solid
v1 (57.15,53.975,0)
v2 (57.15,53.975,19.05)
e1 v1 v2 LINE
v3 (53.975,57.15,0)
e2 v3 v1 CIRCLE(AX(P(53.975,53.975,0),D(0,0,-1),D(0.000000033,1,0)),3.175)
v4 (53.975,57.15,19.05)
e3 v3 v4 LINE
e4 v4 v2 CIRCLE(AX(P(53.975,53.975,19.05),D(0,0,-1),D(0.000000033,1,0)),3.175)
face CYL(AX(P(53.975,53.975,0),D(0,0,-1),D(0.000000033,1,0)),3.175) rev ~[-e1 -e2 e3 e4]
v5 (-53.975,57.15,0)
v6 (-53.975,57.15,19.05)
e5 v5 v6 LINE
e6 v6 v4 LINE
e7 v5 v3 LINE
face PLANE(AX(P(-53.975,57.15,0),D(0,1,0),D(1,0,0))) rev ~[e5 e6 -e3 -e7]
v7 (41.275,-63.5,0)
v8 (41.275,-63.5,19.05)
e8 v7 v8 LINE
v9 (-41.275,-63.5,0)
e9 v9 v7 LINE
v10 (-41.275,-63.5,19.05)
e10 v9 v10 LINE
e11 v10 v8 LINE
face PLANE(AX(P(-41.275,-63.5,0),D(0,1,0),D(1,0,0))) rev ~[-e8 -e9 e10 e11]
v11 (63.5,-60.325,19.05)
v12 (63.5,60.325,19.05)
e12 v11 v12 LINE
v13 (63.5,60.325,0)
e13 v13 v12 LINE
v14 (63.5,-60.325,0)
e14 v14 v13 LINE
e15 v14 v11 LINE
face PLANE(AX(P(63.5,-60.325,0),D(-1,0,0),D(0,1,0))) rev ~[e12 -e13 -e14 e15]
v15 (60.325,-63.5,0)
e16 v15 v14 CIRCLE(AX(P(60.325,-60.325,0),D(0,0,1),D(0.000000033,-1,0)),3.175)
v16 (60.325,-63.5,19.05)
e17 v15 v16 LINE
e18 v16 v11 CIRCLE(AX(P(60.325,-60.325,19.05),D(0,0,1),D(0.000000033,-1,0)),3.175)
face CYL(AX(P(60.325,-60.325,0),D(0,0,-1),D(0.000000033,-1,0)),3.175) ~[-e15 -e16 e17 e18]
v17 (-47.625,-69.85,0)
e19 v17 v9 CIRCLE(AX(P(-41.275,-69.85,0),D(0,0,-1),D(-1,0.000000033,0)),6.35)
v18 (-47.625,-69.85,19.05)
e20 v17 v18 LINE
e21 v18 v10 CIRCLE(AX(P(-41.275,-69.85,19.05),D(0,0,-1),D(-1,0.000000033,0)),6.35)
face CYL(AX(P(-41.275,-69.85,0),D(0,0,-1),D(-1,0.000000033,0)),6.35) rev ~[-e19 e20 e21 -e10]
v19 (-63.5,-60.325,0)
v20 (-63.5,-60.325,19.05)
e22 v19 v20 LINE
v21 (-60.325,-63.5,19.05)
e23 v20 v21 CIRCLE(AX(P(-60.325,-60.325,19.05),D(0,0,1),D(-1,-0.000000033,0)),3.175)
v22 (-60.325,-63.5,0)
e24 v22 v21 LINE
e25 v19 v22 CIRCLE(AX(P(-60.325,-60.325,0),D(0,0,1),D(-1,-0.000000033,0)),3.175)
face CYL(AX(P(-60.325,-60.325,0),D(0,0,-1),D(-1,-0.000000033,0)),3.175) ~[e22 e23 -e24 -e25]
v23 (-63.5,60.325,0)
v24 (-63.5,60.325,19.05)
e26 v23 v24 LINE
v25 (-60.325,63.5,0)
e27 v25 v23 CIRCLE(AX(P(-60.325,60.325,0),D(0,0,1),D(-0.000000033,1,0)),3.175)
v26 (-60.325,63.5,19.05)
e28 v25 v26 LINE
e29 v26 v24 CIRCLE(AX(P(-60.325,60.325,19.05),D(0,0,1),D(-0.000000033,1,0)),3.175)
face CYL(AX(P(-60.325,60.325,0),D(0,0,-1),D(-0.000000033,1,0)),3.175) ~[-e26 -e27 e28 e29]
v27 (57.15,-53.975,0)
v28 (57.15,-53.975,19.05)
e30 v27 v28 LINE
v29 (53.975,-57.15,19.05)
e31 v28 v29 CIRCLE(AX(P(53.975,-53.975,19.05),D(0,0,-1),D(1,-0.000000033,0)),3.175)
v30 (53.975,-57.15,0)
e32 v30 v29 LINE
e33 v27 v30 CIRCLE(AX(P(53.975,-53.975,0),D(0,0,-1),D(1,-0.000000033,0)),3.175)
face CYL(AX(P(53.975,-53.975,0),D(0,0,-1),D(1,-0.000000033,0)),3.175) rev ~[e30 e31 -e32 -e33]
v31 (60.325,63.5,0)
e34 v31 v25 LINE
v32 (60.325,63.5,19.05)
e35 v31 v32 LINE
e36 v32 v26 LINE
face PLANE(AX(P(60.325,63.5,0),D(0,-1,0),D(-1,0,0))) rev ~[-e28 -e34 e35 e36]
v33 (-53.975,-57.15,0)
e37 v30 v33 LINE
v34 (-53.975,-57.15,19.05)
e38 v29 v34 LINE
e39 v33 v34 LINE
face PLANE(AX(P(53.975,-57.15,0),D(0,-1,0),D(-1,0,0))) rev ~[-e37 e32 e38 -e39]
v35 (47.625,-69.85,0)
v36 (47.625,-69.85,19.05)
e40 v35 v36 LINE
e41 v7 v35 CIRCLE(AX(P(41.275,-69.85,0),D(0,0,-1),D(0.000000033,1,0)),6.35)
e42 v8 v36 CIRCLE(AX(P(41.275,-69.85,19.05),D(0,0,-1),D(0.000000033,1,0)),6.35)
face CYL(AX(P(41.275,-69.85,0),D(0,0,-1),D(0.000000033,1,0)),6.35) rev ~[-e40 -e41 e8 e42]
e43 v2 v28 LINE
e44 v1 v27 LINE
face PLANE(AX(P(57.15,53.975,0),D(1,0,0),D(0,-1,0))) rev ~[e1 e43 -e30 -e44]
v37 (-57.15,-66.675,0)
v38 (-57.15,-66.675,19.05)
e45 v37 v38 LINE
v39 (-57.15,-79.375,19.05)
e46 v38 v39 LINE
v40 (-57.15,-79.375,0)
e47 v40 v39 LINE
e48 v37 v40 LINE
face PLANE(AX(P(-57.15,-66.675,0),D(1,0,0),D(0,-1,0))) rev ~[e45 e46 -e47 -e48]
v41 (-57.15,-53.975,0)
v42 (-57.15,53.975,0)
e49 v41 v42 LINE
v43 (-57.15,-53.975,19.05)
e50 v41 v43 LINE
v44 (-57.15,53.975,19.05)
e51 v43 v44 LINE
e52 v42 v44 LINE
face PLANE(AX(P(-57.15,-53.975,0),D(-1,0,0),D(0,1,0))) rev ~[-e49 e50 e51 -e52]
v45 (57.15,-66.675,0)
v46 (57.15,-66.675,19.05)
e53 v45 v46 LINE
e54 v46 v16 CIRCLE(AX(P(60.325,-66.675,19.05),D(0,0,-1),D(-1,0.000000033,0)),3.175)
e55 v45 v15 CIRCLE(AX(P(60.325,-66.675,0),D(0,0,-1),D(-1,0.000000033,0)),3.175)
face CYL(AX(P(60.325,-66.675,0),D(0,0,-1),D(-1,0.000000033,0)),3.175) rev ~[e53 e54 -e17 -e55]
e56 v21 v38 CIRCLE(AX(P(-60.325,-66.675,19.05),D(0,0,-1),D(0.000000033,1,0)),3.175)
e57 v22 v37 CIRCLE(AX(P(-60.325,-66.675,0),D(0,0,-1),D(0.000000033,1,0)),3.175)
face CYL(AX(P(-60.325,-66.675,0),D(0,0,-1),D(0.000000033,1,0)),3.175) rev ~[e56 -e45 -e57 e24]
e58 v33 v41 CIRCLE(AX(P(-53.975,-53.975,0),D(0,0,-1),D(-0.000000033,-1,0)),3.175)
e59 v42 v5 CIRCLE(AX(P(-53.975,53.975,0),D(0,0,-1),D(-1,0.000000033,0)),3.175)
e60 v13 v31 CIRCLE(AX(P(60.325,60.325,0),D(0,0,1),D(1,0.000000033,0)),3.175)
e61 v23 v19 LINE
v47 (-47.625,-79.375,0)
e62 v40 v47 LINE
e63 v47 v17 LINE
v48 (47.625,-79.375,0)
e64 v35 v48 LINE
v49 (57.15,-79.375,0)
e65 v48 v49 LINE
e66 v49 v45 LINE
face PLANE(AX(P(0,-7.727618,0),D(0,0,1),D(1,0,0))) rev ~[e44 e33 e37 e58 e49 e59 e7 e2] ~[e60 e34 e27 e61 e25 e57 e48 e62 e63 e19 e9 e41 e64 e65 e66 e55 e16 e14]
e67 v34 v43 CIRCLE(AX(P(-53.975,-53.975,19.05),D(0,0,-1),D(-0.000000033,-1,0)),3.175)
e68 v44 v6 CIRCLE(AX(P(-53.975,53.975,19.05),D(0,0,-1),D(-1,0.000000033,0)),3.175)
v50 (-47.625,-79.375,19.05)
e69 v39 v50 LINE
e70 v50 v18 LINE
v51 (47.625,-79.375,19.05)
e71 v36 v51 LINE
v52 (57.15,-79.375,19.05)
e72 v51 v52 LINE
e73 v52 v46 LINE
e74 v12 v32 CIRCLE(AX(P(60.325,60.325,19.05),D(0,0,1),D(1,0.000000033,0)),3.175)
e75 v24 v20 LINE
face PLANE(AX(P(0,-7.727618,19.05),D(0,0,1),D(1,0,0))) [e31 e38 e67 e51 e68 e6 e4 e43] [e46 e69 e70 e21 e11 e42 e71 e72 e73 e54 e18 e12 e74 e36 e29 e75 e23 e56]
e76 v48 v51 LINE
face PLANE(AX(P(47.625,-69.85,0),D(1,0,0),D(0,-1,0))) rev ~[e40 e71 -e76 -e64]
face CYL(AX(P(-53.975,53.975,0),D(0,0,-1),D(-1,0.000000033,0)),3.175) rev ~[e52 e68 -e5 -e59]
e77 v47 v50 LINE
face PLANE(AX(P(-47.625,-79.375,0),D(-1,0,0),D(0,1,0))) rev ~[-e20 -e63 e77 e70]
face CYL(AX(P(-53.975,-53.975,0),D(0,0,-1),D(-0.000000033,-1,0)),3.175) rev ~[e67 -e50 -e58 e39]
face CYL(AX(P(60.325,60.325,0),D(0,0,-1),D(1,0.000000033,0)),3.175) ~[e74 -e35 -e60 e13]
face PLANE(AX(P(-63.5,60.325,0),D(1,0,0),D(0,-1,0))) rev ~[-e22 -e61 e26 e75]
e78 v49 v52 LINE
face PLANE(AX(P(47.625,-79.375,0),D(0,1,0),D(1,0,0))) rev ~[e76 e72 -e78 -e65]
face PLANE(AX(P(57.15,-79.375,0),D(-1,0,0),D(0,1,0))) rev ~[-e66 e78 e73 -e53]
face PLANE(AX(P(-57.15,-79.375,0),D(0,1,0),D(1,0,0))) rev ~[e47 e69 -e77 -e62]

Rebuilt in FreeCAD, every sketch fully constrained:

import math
import FreeCAD as App
import Part
import Sketcher
from FreeCAD import Vector
Q = App.Units.Quantity

doc = App.newDocument("Part")
body = doc.addObject("PartDesign::Body", "Body")

sketch1 = body.newObject("Sketcher::SketchObject", "Sketch")
sketch1.AttachmentSupport = (doc.getObject("XY_Plane"), [""])
sketch1.MapMode = "FlatFace"
sketch1.addGeometry([
    Part.LineSegment(Vector(60.3, 63.5, 0), Vector(-60.3, 63.5, 0)),
    Part.ArcOfCircle(Part.Circle(Vector(-60.3, 60.3, 0), Vector(0, 0, 1), 3.2), math.radians(90), math.radians(180)),
    Part.LineSegment(Vector(-63.5, 60.3, 0), Vector(-63.5, -60.3, 0)),
    Part.ArcOfCircle(Part.Circle(Vector(-60.3, -60.3, 0), Vector(0, 0, 1), 3.2), math.radians(-180), math.radians(-90)),
    Part.ArcOfCircle(Part.Circle(Vector(-60.3, -66.7, 0), Vector(0, 0, 1), 3.2), math.radians(0), math.radians(90)),
    Part.LineSegment(Vector(-57.1, -66.7, 0), Vector(-57.1, -79.4, 0)),
    Part.LineSegment(Vector(-57.1, -79.4, 0), Vector(-47.6, -79.4, 0)),
    Part.LineSegment(Vector(-47.6, -79.4, 0), Vector(-47.6, -69.8, 0)),
    Part.ArcOfCircle(Part.Circle(Vector(-41.3, -69.9, 0), Vector(0, 0, 1), 6.4), math.radians(90), math.radians(180)),
    Part.LineSegment(Vector(-41.3, -63.5, 0), Vector(41.3, -63.5, 0)),
    Part.ArcOfCircle(Part.Circle(Vector(41.3, -69.9, 0), Vector(0, 0, 1), 6.4), math.radians(0), math.radians(90)),
    Part.LineSegment(Vector(47.6, -69.8, 0), Vector(47.6, -79.4, 0)),
    Part.LineSegment(Vector(47.6, -79.4, 0), Vector(57.1, -79.4, 0)),
    Part.LineSegment(Vector(57.1, -79.4, 0), Vector(57.1, -66.7, 0)),
    Part.ArcOfCircle(Part.Circle(Vector(60.3, -66.7, 0), Vector(0, 0, 1), 3.2), math.radians(90), math.radians(180)),
    Part.ArcOfCircle(Part.Circle(Vector(60.3, -60.3, 0), Vector(0, 0, 1), 3.2), math.radians(-90), math.radians(0)),
    Part.LineSegment(Vector(63.5, -60.3, 0), Vector(63.5, 60.3, 0)),
    Part.ArcOfCircle(Part.Circle(Vector(60.3, 60.3, 0), Vector(0, 0, 1), 3.2), math.radians(0), math.radians(90)),
    Part.LineSegment(Vector(-57.1, -54, 0), Vector(-57.1, 54, 0)),
    Part.ArcOfCircle(Part.Circle(Vector(-54, 54, 0), Vector(0, 0, 1), 3.2), math.radians(90), math.radians(180)),
    Part.LineSegment(Vector(-54, 57.1, 0), Vector(54, 57.1, 0)),
    Part.ArcOfCircle(Part.Circle(Vector(54, 54, 0), Vector(0, 0, 1), 3.2), math.radians(0), math.radians(90)),
    Part.LineSegment(Vector(57.1, 54, 0), Vector(57.1, -54, 0)),
    Part.ArcOfCircle(Part.Circle(Vector(54, -54, 0), Vector(0, 0, 1), 3.2), math.radians(-90), math.radians(0)),
    Part.LineSegment(Vector(54, -57.1, 0), Vector(-54, -57.1, 0)),
    Part.ArcOfCircle(Part.Circle(Vector(-54, -54, 0), Vector(0, 0, 1), 3.2), math.radians(-180), math.radians(-90)),
], False)
sketch1.addConstraint([
    Sketcher.Constraint("Tangent", 0, 2, 1, 1),
    Sketcher.Constraint("Tangent", 1, 2, 2, 1),
    Sketcher.Constraint("Tangent", 2, 2, 3, 1),
    Sketcher.Constraint("Tangent", 3, 2, 4, 2),
    Sketcher.Constraint("Tangent", 4, 1, 5, 1),
    Sketcher.Constraint("Coincident", 5, 2, 6, 1),
    Sketcher.Constraint("Coincident", 6, 2, 7, 1),
    Sketcher.Constraint("Tangent", 7, 2, 8, 2),
    Sketcher.Constraint("Tangent", 8, 1, 9, 1),
    Sketcher.Constraint("Tangent", 9, 2, 10, 2),
    Sketcher.Constraint("Tangent", 10, 1, 11, 1),
    Sketcher.Constraint("Coincident", 11, 2, 12, 1),
    Sketcher.Constraint("Coincident", 12, 2, 13, 1),
    Sketcher.Constraint("Tangent", 13, 2, 14, 2),
    Sketcher.Constraint("Tangent", 14, 1, 15, 1),
    Sketcher.Constraint("Tangent", 15, 2, 16, 1),
    Sketcher.Constraint("Tangent", 16, 2, 17, 1),
    Sketcher.Constraint("Tangent", 17, 2, 0, 1),
    Sketcher.Constraint("Tangent", 18, 2, 19, 2),
    Sketcher.Constraint("Tangent", 19, 1, 20, 1),
    Sketcher.Constraint("Tangent", 20, 2, 21, 2),
    Sketcher.Constraint("Tangent", 21, 1, 22, 1),
    Sketcher.Constraint("Tangent", 22, 2, 23, 2),
    Sketcher.Constraint("Tangent", 23, 1, 24, 1),
    Sketcher.Constraint("Tangent", 24, 2, 25, 2),
    Sketcher.Constraint("Tangent", 25, 1, 18, 1),
    Sketcher.Constraint("Horizontal", 0),
    Sketcher.Constraint("Vertical", 2),
    Sketcher.Constraint("Vertical", 5),
    Sketcher.Constraint("Horizontal", 6),
    Sketcher.Constraint("Vertical", 7),
    Sketcher.Constraint("Horizontal", 9),
    Sketcher.Constraint("Vertical", 11),
    Sketcher.Constraint("Horizontal", 12),
    Sketcher.Constraint("Vertical", 13),
    Sketcher.Constraint("Vertical", 16),
    Sketcher.Constraint("Vertical", 18),
    Sketcher.Constraint("Horizontal", 20),
    Sketcher.Constraint("Vertical", 22),
    Sketcher.Constraint("Horizontal", 24),
    Sketcher.Constraint("Equal", 1, 3),
    Sketcher.Constraint("Equal", 3, 4),
    Sketcher.Constraint("Equal", 8, 10),
    Sketcher.Constraint("Equal", 4, 14),
    Sketcher.Constraint("Equal", 14, 15),
    Sketcher.Constraint("Equal", 15, 17),
    Sketcher.Constraint("Equal", 17, 19),
    Sketcher.Constraint("Equal", 19, 21),
    Sketcher.Constraint("Equal", 21, 23),
    Sketcher.Constraint("Equal", 23, 25),
    Sketcher.Constraint("Symmetric", 1, 3, 15, 3, -1, 1),
    Sketcher.Constraint("Symmetric", 19, 3, 23, 3, -1, 1),
    Sketcher.Constraint("Symmetric", 3, 2, 17, 2, -1, 1),
    Sketcher.Constraint("Symmetric", 6, 2, 11, 2, -2),
    Sketcher.Constraint("Horizontal", 3, 2, 8, 1),
    Sketcher.Constraint("Vertical", 14, 3, 15, 3),
    Sketcher.Constraint("Vertical", 5, 2, 18, 2),
    Sketcher.Constraint("Equal", 0, 2),
    Sketcher.Constraint("Equal", 12, 7),
    Sketcher.Constraint("Equal", 24, 18),
    Sketcher.Constraint("Radius", 8, Q("0.25 in")),
    Sketcher.Constraint("DistanceY", 5, 2, 5, 1, Q("0.5 in")),
    Sketcher.Constraint("Radius", 1, Q("0.125 in")),
    Sketcher.Constraint("DistanceY", 4, 3, 1, 3, Q("5 in")),
])
pad1 = body.newObject("PartDesign::Pad", "Pad")
pad1.Profile = sketch1
pad1.Length = Q("0.75 in")

doc.recompute()
